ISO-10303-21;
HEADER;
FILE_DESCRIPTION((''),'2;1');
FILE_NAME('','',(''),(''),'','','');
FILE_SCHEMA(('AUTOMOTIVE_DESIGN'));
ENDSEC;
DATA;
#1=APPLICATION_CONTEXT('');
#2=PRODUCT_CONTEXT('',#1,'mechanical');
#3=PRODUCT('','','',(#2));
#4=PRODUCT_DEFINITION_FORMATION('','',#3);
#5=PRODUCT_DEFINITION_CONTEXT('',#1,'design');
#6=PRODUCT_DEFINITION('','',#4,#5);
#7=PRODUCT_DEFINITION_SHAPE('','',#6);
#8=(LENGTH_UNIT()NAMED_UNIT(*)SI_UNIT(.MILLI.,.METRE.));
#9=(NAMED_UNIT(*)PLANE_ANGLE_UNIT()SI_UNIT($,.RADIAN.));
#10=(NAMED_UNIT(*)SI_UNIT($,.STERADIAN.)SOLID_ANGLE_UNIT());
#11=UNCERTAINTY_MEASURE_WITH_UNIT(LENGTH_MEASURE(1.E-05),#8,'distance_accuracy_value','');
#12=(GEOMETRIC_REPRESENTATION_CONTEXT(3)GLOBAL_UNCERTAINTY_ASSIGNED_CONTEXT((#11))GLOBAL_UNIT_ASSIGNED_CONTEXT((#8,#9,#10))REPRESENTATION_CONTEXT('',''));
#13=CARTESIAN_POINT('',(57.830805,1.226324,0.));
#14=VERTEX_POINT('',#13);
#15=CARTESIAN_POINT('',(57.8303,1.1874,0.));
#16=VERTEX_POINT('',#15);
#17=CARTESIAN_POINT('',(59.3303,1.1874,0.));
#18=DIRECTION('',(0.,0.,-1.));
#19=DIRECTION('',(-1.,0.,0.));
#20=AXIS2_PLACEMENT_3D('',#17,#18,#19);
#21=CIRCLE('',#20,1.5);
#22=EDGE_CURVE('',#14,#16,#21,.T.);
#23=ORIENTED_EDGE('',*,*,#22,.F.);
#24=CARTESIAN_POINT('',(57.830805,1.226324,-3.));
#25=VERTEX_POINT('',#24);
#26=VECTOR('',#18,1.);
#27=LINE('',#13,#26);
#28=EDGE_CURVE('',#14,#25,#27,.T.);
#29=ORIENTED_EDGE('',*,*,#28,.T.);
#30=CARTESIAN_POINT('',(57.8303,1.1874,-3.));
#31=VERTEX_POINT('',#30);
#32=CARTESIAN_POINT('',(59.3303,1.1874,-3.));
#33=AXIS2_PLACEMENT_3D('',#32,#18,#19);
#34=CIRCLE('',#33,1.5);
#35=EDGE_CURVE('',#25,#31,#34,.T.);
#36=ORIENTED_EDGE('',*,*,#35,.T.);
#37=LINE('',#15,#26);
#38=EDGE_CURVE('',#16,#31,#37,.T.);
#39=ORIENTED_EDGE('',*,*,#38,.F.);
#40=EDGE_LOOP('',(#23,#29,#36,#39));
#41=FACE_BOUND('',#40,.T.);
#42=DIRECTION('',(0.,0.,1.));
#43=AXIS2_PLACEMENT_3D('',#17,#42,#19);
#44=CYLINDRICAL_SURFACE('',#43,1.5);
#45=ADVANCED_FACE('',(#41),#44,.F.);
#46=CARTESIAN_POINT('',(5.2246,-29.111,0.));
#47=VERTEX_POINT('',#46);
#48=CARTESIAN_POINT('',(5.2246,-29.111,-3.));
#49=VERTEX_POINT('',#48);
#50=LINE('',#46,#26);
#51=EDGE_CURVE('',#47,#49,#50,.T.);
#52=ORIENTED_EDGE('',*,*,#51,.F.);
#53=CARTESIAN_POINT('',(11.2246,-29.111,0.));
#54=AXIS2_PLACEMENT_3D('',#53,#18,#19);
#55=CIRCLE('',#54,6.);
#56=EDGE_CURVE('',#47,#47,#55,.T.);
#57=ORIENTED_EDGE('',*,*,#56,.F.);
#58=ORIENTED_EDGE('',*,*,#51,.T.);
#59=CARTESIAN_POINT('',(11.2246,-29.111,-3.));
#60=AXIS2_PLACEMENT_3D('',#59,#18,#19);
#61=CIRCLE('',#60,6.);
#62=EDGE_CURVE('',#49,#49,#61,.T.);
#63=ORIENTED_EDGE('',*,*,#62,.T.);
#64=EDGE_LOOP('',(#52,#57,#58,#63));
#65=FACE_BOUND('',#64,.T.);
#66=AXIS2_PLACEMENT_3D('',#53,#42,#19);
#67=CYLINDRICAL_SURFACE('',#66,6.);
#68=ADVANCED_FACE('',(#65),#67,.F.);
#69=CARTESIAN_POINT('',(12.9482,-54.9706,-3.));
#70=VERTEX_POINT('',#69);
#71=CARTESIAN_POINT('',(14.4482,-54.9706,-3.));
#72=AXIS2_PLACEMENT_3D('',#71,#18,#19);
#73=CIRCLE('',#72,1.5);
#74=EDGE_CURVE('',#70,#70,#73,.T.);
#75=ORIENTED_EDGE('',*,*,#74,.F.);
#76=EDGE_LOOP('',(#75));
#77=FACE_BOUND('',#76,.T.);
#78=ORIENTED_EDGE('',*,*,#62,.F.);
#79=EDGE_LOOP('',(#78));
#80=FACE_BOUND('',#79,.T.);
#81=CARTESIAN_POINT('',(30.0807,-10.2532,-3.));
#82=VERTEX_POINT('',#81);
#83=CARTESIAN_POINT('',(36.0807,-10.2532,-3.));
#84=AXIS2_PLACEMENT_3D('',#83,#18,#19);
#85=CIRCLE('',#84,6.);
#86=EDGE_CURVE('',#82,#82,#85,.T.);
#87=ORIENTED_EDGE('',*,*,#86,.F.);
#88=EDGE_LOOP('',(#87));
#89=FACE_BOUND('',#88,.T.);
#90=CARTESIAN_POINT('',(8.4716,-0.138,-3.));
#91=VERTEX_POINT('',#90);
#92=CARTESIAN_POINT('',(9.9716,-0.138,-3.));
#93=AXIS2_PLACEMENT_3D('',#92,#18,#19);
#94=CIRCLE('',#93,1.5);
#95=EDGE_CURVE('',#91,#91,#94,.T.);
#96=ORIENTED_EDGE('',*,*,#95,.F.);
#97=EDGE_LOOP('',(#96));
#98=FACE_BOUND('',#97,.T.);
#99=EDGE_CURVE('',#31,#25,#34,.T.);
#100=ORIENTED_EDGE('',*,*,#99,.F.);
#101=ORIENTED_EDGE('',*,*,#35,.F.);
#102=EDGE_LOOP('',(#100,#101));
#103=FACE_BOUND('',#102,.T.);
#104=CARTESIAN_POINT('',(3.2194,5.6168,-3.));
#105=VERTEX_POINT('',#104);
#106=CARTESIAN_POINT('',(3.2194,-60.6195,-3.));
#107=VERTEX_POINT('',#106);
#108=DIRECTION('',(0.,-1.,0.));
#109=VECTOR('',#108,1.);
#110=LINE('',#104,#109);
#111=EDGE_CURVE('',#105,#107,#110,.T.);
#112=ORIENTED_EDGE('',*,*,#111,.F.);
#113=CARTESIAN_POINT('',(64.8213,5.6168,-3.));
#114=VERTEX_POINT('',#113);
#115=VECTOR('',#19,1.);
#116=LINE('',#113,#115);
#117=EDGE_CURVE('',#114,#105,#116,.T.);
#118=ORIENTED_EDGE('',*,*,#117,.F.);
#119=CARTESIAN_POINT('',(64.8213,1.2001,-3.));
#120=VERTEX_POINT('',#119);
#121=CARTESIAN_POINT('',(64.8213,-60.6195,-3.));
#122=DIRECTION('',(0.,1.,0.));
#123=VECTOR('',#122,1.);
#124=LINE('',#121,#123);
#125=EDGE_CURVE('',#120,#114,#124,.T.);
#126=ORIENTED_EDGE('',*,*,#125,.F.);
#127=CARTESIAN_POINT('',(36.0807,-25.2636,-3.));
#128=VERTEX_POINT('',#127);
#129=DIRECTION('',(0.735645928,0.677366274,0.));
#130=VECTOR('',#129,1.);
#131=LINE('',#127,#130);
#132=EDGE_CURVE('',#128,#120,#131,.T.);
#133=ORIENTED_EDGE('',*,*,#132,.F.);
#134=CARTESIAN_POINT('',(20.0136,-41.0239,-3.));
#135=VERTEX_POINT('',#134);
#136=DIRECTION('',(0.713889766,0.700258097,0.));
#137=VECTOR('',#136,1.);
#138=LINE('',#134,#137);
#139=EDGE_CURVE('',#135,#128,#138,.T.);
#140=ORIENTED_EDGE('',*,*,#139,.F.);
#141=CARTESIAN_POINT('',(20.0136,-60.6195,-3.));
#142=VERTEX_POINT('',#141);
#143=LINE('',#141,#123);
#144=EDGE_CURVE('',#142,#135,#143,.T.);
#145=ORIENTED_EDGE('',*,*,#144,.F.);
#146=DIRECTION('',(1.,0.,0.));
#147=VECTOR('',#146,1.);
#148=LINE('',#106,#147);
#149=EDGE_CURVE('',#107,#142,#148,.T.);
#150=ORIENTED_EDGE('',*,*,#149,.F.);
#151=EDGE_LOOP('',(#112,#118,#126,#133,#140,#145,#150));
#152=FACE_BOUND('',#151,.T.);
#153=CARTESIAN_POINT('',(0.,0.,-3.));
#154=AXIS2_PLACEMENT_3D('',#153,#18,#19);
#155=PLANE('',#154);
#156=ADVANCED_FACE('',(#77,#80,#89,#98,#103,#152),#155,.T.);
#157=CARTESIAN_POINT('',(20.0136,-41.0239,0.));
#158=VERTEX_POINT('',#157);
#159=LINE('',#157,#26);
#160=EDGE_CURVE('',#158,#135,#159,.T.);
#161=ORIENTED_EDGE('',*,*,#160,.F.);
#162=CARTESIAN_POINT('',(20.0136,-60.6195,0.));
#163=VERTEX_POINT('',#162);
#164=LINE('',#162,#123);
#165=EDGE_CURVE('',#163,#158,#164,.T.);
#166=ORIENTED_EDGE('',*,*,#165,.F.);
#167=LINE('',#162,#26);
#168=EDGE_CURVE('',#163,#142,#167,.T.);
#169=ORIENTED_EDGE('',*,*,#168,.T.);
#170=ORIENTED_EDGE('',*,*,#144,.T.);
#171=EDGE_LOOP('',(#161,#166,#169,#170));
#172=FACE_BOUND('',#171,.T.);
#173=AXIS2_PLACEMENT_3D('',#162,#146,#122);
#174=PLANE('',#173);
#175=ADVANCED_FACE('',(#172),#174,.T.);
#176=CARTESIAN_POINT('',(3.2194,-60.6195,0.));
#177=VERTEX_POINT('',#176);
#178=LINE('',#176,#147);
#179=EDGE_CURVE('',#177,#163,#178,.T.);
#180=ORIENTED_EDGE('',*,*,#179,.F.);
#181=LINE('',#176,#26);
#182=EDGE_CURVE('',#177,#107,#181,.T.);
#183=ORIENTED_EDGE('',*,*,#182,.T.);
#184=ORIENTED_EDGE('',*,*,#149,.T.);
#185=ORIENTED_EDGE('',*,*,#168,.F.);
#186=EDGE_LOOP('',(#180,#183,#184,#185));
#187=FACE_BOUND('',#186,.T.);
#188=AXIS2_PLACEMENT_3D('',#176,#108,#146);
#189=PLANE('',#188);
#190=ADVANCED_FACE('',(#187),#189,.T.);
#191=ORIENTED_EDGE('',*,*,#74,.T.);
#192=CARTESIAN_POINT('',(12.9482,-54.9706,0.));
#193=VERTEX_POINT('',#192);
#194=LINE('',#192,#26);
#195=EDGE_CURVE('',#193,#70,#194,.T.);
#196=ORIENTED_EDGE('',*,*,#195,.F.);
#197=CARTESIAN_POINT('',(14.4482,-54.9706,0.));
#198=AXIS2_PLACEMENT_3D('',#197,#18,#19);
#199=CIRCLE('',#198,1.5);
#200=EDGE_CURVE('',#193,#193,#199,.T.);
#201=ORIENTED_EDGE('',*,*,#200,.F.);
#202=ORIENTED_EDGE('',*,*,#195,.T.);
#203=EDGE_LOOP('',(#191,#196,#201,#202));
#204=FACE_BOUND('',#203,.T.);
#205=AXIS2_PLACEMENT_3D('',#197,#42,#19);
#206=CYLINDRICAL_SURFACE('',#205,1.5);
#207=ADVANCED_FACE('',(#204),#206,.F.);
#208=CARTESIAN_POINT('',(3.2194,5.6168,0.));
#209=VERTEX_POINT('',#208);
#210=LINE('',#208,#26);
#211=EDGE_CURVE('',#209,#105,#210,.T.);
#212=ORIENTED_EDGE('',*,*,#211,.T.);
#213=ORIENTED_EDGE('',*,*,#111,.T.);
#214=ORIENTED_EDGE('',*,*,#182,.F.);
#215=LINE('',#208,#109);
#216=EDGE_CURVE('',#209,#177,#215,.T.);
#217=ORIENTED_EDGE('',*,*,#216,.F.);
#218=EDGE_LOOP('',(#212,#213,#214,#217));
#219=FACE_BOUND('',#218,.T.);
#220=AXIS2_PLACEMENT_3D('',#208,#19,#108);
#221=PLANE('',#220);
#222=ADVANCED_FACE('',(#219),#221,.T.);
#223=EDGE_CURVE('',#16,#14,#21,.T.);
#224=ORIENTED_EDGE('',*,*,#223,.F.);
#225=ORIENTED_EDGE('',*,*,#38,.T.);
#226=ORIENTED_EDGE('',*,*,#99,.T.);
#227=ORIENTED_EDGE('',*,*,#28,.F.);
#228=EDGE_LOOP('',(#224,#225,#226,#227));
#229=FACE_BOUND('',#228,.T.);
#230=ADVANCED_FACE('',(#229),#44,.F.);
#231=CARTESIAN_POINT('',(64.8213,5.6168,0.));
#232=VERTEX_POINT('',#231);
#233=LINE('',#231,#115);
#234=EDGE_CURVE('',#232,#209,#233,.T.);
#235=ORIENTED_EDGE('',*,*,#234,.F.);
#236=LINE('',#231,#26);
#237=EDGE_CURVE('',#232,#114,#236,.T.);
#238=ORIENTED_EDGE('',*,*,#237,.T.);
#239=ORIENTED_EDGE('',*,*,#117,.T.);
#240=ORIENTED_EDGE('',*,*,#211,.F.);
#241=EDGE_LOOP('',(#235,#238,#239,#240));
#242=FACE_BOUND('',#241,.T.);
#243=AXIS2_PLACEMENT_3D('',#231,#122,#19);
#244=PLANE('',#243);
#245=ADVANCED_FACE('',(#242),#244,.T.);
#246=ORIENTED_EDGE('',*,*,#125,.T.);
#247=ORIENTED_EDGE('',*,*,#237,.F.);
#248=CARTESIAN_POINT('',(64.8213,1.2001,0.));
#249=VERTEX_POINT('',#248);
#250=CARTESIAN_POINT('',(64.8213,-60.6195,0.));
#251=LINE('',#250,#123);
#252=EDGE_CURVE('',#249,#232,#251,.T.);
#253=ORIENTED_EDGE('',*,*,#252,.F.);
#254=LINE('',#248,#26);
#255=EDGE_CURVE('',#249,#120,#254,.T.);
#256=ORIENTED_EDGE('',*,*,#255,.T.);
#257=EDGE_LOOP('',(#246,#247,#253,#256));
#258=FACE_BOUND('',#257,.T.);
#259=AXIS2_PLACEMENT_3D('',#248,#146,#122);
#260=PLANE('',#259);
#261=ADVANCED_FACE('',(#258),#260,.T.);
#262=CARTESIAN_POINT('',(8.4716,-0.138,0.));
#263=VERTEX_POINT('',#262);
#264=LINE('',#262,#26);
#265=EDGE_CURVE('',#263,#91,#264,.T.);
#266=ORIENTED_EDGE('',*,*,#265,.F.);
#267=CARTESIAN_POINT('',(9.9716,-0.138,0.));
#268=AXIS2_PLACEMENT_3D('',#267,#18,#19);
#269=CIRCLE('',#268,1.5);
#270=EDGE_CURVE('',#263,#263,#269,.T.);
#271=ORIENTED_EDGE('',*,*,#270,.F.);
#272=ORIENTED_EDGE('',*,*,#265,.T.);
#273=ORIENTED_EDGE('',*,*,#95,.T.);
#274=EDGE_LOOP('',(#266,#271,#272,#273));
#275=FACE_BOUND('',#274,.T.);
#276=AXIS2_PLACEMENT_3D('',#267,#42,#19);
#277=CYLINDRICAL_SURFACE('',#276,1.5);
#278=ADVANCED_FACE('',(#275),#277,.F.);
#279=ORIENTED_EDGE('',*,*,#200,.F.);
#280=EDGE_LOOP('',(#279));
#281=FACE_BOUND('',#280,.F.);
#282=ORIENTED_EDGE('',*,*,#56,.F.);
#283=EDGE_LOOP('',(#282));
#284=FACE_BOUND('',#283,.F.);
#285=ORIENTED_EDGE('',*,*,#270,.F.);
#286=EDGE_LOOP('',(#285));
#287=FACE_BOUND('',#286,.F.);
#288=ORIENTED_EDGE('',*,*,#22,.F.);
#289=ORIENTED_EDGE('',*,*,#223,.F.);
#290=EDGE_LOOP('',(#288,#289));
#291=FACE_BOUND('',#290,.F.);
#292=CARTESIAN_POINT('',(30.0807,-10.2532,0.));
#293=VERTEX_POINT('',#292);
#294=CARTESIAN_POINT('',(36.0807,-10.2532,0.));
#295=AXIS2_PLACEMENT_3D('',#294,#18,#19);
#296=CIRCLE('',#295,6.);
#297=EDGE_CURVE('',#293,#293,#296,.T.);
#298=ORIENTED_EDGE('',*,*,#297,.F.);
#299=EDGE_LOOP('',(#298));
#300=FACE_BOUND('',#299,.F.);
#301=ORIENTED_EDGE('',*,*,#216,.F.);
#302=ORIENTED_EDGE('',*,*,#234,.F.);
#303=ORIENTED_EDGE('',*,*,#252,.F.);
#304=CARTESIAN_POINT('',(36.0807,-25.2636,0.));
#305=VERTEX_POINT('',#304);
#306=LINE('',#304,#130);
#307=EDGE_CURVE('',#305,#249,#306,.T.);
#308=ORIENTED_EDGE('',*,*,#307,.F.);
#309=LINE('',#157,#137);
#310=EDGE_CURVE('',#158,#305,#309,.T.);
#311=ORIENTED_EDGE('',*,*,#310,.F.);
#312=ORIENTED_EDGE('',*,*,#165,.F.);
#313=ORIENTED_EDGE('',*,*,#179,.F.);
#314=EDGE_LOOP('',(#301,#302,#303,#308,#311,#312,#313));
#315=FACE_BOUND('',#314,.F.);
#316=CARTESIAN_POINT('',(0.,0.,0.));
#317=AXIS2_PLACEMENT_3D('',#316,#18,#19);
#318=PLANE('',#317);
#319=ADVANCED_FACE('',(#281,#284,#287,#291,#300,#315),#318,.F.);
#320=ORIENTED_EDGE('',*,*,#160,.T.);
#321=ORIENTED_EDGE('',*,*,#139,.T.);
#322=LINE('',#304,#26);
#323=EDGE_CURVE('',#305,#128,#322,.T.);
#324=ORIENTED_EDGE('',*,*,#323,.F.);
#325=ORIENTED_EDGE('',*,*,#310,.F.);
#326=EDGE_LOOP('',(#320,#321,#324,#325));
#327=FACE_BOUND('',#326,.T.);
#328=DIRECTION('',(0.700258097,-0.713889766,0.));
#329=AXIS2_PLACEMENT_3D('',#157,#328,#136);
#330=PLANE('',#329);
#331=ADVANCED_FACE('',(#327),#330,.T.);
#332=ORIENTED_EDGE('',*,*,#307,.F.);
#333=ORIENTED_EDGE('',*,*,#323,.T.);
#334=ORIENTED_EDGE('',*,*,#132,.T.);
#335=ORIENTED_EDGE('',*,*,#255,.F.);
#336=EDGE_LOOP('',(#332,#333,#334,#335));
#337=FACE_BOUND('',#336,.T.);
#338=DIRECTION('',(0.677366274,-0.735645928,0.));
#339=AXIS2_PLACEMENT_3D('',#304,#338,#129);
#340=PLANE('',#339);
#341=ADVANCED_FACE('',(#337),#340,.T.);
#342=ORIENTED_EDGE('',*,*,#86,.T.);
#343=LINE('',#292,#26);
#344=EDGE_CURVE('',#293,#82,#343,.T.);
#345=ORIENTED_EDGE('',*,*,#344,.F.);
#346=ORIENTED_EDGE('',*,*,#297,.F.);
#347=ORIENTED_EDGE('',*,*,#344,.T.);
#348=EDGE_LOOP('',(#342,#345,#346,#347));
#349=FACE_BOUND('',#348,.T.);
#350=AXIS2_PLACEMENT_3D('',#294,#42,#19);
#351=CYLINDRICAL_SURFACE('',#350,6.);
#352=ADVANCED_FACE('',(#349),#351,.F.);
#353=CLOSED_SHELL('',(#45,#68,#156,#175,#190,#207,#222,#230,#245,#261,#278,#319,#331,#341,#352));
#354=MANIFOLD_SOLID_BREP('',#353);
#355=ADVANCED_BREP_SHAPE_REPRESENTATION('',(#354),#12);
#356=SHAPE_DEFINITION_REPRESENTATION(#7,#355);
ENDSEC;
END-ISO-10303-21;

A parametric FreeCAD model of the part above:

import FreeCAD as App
import Part
import Sketcher
from FreeCAD import Vector
Q = App.Units.Quantity


def add_polygon(sketch, points):
    """Adds a closed chain of lines whose ends are joined by coincident constraints."""
    first, n = sketch.GeometryCount, len(points)
    for a, b in zip(points, points[1:] + points[:1]):
        sketch.addGeometry(Part.LineSegment(App.Vector(*a, 0), App.Vector(*b, 0)), False)
    for i in range(n):
        sketch.addConstraint(Sketcher.Constraint("Coincident", first + i, 2, first + (i + 1) % n, 1))

doc = App.newDocument("Part")
params = doc.addObject("Spreadsheet::Sheet", "Params")
for row, (alias, value) in enumerate([
    ("sketch1_diameter", "3 mm"),
    ("sketch1_diameter2", "12 mm"),
    ("pad1_length", "3 mm"),
], start=1):
    params.set(f"A{row}", alias)
    params.set(f"B{row}", "=" + value)
    params.setAlias(f"B{row}", alias)

body = doc.addObject("PartDesign::Body", "Body")

sketch1 = body.newObject("Sketcher::SketchObject", "Sketch")
sketch1.AttachmentSupport = (doc.getObject("XY_Plane"), [""])
sketch1.MapMode = "FlatFace"
add_polygon(sketch1, [(3.2194, -60.6195), (3.2194, 5.6168), (64.8213, 5.6168), (64.8213, 1.2001), (36.0807, -25.2636), (20.0136, -41.0239), (20.0136, -60.6195)])
sketch1.addGeometry(Part.Circle(Vector(14.4482, -54.9706, 0), Vector(0, 0, 1), 1.5), False)
sketch1.addGeometry(Part.Circle(Vector(11.2246, -29.111, 0), Vector(0, 0, 1), 6), False)
sketch1.addGeometry(Part.Circle(Vector(59.3303, 1.1874, 0), Vector(0, 0, 1), 1.5), False)
sketch1.addGeometry(Part.Circle(Vector(36.0807, -10.2532, 0), Vector(0, 0, 1), 6), False)
sketch1.addGeometry(Part.Circle(Vector(9.9716, -0.138, 0), Vector(0, 0, 1), 1.5), False)
sketch1.addConstraint(Sketcher.Constraint("Vertical", 0))
sketch1.addConstraint(Sketcher.Constraint("Horizontal", 1))
sketch1.addConstraint(Sketcher.Constraint("Vertical", 2))
sketch1.addConstraint(Sketcher.Constraint("Vertical", 5))
sketch1.addConstraint(Sketcher.Constraint("Horizontal", 6))
sketch1.addConstraint(Sketcher.Constraint("Equal", 7, 9))
sketch1.addConstraint(Sketcher.Constraint("Equal", 8, 10))
sketch1.addConstraint(Sketcher.Constraint("Equal", 9, 11))
sketch1.addConstraint(Sketcher.Constraint("Vertical", 10, 3, 3, 2))
sketch1.addConstraint(Sketcher.Constraint("Diameter", 7, Q("3 mm")))
sketch1.addConstraint(Sketcher.Constraint("Diameter", 8, Q("12 mm")))
sketch1.addConstraint(Sketcher.Constraint("DistanceY", -1, 1, 2, 2, Q("1.2 mm")))
sketch1.addConstraint(Sketcher.Constraint("DistanceX", 1, 1, 1, 2, Q("61.602 mm")))
sketch1.addConstraint(Sketcher.Constraint("DistanceY", 10, 3, 0, 2, Q("15.87 mm")))
sketch1.addConstraint(Sketcher.Constraint("DistanceX", 6, 2, 6, 1, Q("16.7942 mm")))
sketch1.addConstraint(Sketcher.Constraint("DistanceY", 0, 1, 0, 2, Q("66.2363 mm")))
sketch1.addConstraint(Sketcher.Constraint("DistanceY", 2, 2, 2, 1, Q("4.4167 mm")))
sketch1.addConstraint(Sketcher.Constraint("DistanceY", 5, 2, 5, 1, Q("19.5956 mm")))
sketch1.addConstraint(Sketcher.Constraint("DistanceY", 8, 3, -1, 1, Q("29.111 mm")))
sketch1.addConstraint(Sketcher.Constraint("DistanceY", 11, 3, -1, 1, Q("0.138 mm")))
sketch1.addConstraint(Sketcher.Constraint("DistanceX", 7, 3, 9, 3, Q("44.882 mm")))
sketch1.addConstraint(Sketcher.Constraint("DistanceY", 7, 3, 9, 3, Q("56.158 mm")))
sketch1.addConstraint(Sketcher.Constraint("DistanceX", 8, 3, 10, 3, Q("24.856 mm")))
sketch1.addConstraint(Sketcher.Constraint("DistanceX", 11, 3, 10, 3, Q("26.109 mm")))
sketch1.addConstraint(Sketcher.Constraint("DistanceX", 0, 2, 9, 3, Q("56.111 mm")))
sketch1.addConstraint(Sketcher.Constraint("DistanceY", 3, 2, 9, 3, Q("26.451 mm")))
sketch1.addConstraint(Sketcher.Constraint("DistanceX", 8, 3, 4, 2, Q("8.789 mm")))
sketch1.addConstraint(Sketcher.Constraint("DistanceY", 5, 2, 7, 3, Q("5.649 mm")))
sketch1.addConstraint(Sketcher.Constraint("DistanceX", -1, 1, 7, 3, Q("14.4482 mm")))
sketch1.setExpression("Constraints[16]", "Params.sketch1_diameter")
sketch1.setExpression("Constraints[17]", "Params.sketch1_diameter2")
pad1 = body.newObject("PartDesign::Pad", "Pad")
pad1.Profile = sketch1
pad1.setExpression("Length", "Params.pad1_length")
pad1.Reversed = True

doc.recompute()
